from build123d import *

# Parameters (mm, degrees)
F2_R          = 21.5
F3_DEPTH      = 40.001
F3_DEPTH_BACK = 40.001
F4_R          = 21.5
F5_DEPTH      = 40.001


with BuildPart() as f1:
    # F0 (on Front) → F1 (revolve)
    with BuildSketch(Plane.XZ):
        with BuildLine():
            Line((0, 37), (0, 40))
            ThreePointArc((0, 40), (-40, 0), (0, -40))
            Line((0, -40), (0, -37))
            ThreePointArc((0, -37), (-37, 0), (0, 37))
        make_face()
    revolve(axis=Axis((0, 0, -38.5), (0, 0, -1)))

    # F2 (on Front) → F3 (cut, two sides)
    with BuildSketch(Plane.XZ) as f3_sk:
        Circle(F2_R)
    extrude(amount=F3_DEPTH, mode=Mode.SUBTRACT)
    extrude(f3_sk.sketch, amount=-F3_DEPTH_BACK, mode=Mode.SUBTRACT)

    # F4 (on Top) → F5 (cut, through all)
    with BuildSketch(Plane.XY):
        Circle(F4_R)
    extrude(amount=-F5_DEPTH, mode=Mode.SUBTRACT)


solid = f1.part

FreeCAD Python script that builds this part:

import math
import FreeCAD as App
import Part
import Sketcher
from FreeCAD import Vector

doc = App.newDocument("Part")
body = doc.addObject("PartDesign::Body", "Body")

# Sketch on XZ plane
sketch1 = body.newObject("Sketcher::SketchObject", "Sketch")
sketch1.AttachmentSupport = (doc.getObject("XZ_Plane"), [""])
sketch1.MapMode = "FlatFace"
sketch1.addGeometry([
    Part.LineSegment(Vector(0, 37, 0), Vector(0, 40, 0)),
    Part.ArcOfCircle(Part.Circle(Vector(0, 0, 0), Vector(0, 0, 1), 40), math.radians(90), math.radians(270)),
    Part.LineSegment(Vector(0, -40, 0), Vector(0, -37, 0)),
    Part.ArcOfCircle(Part.Circle(Vector(0, 0, 0), Vector(0, 0, 1), 37), math.radians(90), math.radians(270)),
], False)
sketch1.addConstraint([
    Sketcher.Constraint("Coincident", 0, 2, 1, 1),
    Sketcher.Constraint("Coincident", 1, 2, 2, 1),
    Sketcher.Constraint("Coincident", 2, 2, 3, 2),
    Sketcher.Constraint("Coincident", 3, 1, 0, 1),
    Sketcher.Constraint("Vertical", 0),
    Sketcher.Constraint("Vertical", 2),
    Sketcher.Constraint("Coincident", 1, 3, -1, 1),
    Sketcher.Constraint("Coincident", 3, 3, -1, 1),
    Sketcher.Constraint("PointOnObject", 0, 2, -2),
    Sketcher.Constraint("PointOnObject", 1, 2, -2),
    Sketcher.Constraint("Radius", 1, 40.0),
    Sketcher.Constraint("Radius", 3, 37.0),
])
revolution = body.newObject("PartDesign::Revolution", "Revolution")
revolution.Profile = sketch1
revolution.ReferenceAxis = (sketch1, ["V_Axis"])
revolution.Angle = 360

# Sketch on XZ plane
sketch2 = body.newObject("Sketcher::SketchObject", "Sketch001")
sketch2.AttachmentSupport = (doc.getObject("XZ_Plane"), [""])
sketch2.MapMode = "FlatFace"
sketch2.addGeometry(Part.Circle(Vector(0, 0, 0), Vector(0, 0, 1), 21.5), False)
sketch2.addConstraint([
    Sketcher.Constraint("Coincident", 0, 3, -1, 1),
    Sketcher.Constraint("Diameter", 0, 43.0),
])
pocket1 = body.newObject("PartDesign::Pocket", "Pocket")
pocket1.Profile = sketch2
pocket1.Type = "ThroughAll"
pocket1.Midplane = True

# Sketch on XY plane
sketch3 = body.newObject("Sketcher::SketchObject", "Sketch002")
sketch3.AttachmentSupport = (doc.getObject("XY_Plane"), [""])
sketch3.MapMode = "FlatFace"
sketch3.addGeometry(Part.Circle(Vector(0, 0, 0), Vector(0, 0, 1), 21.5), False)
sketch3.addConstraint([
    Sketcher.Constraint("Coincident", 0, 3, -1, 1),
    Sketcher.Constraint("Diameter", 0, 43.0),
])
pocket2 = body.newObject("PartDesign::Pocket", "Pocket001")
pocket2.Profile = sketch3
pocket2.Type = "ThroughAll"

doc.recompute()
